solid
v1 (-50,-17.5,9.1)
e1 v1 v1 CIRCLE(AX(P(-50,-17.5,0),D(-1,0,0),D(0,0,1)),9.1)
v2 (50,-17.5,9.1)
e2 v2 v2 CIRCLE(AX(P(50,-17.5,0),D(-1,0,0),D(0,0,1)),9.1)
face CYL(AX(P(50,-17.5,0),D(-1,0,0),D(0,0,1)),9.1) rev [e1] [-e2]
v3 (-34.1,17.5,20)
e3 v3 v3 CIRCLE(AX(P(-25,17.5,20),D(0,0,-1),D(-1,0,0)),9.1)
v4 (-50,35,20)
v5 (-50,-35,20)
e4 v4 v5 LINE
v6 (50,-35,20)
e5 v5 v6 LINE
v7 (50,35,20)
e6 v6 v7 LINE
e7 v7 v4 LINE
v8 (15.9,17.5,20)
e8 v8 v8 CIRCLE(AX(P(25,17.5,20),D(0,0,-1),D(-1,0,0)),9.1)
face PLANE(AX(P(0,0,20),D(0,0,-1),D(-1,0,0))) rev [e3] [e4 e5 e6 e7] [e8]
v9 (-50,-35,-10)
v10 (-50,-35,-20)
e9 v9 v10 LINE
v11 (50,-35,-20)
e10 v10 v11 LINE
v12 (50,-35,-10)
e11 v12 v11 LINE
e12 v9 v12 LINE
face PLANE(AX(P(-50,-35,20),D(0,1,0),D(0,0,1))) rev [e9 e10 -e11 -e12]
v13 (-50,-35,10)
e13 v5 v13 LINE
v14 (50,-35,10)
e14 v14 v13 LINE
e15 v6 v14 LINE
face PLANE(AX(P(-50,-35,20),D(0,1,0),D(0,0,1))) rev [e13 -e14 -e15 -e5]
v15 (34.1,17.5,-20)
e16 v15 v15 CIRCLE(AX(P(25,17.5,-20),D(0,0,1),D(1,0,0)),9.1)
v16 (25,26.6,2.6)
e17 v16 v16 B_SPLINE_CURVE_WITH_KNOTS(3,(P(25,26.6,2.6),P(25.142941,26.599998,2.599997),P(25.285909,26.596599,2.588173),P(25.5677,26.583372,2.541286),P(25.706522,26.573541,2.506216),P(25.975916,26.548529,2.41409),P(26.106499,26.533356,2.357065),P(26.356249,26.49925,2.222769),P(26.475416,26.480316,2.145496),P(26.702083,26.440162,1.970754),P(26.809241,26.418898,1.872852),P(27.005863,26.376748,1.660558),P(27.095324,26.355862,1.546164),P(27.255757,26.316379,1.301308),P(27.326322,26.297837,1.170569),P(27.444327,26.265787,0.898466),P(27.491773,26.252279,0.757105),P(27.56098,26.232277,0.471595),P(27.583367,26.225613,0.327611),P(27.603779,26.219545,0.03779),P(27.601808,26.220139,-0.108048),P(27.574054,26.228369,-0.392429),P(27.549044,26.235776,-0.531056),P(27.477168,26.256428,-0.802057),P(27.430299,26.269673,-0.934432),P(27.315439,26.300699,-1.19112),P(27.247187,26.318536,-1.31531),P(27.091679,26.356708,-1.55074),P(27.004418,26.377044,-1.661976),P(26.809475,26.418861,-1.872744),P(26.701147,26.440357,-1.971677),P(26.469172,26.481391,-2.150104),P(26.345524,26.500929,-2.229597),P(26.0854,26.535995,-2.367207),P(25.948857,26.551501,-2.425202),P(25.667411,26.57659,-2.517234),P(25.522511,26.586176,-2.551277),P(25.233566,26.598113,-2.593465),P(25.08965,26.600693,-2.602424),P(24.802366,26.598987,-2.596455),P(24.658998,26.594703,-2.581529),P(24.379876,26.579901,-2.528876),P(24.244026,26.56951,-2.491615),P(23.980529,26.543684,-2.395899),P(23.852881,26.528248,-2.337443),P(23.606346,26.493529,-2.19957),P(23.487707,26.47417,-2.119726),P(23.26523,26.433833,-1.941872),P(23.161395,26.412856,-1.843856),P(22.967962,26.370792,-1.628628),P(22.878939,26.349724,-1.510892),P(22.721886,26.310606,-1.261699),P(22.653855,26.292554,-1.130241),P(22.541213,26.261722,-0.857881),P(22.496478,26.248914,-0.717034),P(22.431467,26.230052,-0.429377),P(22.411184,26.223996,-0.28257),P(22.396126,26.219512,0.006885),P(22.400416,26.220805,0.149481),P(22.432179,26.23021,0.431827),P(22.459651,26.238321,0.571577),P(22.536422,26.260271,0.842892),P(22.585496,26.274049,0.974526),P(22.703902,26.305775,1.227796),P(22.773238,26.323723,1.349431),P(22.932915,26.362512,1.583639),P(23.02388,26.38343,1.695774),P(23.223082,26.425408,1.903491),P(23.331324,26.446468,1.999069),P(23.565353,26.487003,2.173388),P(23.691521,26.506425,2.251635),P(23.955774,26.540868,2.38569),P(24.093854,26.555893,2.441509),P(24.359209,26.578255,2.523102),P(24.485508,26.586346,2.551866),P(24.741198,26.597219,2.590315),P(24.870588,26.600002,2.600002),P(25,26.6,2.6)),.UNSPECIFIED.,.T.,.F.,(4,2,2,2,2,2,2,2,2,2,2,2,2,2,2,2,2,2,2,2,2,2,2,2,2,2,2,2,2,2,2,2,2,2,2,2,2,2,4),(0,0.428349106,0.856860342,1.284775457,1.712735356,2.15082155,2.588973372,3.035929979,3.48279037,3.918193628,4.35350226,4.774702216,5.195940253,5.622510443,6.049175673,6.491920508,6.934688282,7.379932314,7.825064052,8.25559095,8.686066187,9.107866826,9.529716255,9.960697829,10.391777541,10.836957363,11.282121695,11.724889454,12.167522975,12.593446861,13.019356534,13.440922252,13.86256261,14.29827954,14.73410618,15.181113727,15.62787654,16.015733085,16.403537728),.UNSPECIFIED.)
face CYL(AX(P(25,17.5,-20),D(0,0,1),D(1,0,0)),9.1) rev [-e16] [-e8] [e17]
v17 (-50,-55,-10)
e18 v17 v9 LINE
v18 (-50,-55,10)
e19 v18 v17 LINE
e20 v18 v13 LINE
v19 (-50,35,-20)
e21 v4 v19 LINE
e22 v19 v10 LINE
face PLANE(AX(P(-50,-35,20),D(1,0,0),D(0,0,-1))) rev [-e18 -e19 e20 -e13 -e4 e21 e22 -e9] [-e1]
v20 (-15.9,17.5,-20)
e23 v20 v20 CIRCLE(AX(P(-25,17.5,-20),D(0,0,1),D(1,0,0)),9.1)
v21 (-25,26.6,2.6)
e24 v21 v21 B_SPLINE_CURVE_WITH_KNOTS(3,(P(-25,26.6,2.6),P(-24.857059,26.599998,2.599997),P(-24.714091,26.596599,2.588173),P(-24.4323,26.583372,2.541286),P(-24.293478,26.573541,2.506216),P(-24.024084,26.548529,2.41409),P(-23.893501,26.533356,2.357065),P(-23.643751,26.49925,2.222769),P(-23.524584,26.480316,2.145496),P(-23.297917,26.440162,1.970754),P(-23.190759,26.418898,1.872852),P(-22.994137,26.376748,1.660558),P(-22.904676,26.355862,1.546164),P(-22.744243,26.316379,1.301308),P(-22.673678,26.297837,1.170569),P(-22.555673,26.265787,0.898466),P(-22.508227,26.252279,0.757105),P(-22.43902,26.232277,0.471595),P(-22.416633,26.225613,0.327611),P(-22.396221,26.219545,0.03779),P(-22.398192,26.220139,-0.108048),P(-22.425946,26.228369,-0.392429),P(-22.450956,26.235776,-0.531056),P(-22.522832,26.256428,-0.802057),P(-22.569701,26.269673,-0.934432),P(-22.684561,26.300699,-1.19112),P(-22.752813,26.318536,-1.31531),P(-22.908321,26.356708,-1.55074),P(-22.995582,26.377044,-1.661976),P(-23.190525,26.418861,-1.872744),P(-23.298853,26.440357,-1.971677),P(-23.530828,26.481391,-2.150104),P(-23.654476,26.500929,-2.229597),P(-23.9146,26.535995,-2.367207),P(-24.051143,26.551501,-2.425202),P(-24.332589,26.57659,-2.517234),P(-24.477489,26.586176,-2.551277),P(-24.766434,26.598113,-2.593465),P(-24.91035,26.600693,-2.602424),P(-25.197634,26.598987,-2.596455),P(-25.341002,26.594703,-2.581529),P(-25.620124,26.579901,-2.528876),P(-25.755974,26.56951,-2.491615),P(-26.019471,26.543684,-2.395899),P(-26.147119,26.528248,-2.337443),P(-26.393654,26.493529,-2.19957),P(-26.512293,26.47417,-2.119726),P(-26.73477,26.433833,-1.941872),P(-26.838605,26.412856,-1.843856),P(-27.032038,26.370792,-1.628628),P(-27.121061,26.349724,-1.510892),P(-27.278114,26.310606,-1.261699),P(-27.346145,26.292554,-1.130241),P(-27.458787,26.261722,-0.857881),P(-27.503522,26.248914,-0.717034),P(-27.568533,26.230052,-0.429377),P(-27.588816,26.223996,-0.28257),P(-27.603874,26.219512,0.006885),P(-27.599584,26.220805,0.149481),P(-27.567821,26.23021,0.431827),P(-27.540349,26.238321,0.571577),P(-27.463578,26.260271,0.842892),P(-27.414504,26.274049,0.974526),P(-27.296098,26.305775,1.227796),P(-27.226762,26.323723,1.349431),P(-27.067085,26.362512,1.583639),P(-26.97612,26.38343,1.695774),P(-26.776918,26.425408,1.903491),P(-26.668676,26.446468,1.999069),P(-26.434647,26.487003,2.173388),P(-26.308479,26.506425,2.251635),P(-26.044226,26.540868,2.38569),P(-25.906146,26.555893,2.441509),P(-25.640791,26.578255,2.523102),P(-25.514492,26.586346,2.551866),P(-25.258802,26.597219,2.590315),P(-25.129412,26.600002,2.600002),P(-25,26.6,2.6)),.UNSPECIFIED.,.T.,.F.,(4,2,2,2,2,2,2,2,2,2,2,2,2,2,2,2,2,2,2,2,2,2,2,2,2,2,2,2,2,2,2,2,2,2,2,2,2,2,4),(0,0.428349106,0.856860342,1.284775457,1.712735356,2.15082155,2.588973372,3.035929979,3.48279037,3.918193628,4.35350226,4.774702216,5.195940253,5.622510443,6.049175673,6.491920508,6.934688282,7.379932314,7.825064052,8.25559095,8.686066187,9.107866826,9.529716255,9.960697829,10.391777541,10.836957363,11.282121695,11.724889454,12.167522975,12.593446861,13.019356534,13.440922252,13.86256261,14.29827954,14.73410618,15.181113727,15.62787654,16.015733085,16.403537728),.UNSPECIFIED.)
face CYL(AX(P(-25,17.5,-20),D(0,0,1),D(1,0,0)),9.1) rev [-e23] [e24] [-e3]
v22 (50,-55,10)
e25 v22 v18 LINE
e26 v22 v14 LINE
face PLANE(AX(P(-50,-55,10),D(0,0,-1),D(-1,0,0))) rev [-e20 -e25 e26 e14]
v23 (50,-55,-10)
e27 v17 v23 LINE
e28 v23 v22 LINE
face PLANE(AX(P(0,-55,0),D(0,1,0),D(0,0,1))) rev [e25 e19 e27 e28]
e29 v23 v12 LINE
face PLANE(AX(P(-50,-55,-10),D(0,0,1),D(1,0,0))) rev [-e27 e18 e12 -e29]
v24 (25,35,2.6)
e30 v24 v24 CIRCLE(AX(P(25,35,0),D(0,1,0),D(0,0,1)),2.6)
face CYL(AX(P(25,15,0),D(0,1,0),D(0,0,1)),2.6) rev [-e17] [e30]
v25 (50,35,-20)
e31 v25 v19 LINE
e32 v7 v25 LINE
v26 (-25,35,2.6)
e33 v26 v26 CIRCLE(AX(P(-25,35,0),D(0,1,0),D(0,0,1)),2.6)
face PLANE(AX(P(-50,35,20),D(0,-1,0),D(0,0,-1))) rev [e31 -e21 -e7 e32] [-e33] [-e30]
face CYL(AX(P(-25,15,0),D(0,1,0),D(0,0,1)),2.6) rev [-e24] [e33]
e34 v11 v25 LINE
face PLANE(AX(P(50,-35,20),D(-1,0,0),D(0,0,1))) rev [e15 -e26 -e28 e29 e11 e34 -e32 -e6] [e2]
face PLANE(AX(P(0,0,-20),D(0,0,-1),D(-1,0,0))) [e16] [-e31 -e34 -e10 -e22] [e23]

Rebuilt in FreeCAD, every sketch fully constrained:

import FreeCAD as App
import Part
import Sketcher


def add_polygon(sketch, points):
    """Adds a closed chain of lines whose ends are joined by coincident constraints."""
    first, n = sketch.GeometryCount, len(points)
    for a, b in zip(points, points[1:] + points[:1]):
        sketch.addGeometry(Part.LineSegment(App.Vector(*a, 0), App.Vector(*b, 0)), False)
    for i in range(n):
        sketch.addConstraint(Sketcher.Constraint("Coincident", first + i, 2, first + (i + 1) % n, 1))

doc = App.newDocument("Part")
body = doc.addObject("PartDesign::Body", "Body")

# Sketch on XY plane
sketch1 = doc.addObject("Sketcher::SketchObject", "Sketch")
body.addObject(sketch1)
sketch1.AttachmentSupport = (doc.XY_Plane, [""])
sketch1.MapMode = "FlatFace"
add_polygon(sketch1, [(-50, 35), (-50, -35), (50, -35), (50, 35)])  # lines 0-3
sketch1.addConstraint([
    Sketcher.Constraint("Vertical", 0),
    Sketcher.Constraint("Horizontal", 1),
    Sketcher.Constraint("Vertical", 2),
    Sketcher.Constraint("Horizontal", 3),
    Sketcher.Constraint("Symmetric", 0, 2, 2, 2, -1, 1),
    Sketcher.Constraint("DistanceX", 1, 1, 1, 2, 100.0),
    Sketcher.Constraint("DistanceY", 0, 2, 0, 1, 70.0),
])
pad1 = doc.addObject("PartDesign::Pad", "Pad")
body.addObject(pad1)
pad1.Profile = sketch1
pad1.Length = 40
pad1.Midplane = True

# Sketch on XY plane
sketch2 = doc.addObject("Sketcher::SketchObject", "Sketch001")
body.addObject(sketch2)
sketch2.AttachmentSupport = (doc.XY_Plane, [""])
sketch2.MapMode = "FlatFace"
sketch2.AttachmentOffset = App.Placement(App.Vector(0, 0, 20), App.Rotation())
sketch2.addGeometry([
    Part.Circle(App.Vector(25, 18, 0), App.Vector(0, 0, 1), 9),
    Part.Circle(App.Vector(-25, 18, 0), App.Vector(0, 0, 1), 9),
], False)
sketch2.addConstraint([
    Sketcher.Constraint("Equal", 0, 1),
    Sketcher.Constraint("Symmetric", 0, 3, 1, 3, -2),
    Sketcher.Constraint("Diameter", 0, 18.2),
    Sketcher.Constraint("DistanceX", -1, 1, 0, 3, 25.0),
    Sketcher.Constraint("DistanceY", -1, 1, 0, 3, 17.5),
])
pocket1 = doc.addObject("PartDesign::Pocket", "Pocket")
body.addObject(pocket1)
pocket1.Profile = sketch2
pocket1.Type = "ThroughAll"
pocket1.Midplane = True

# Sketch on YZ plane
sketch3 = doc.addObject("Sketcher::SketchObject", "Sketch002")
body.addObject(sketch3)
sketch3.AttachmentSupport = (doc.YZ_Plane, [""])
sketch3.MapMode = "FlatFace"
sketch3.AttachmentOffset = App.Placement(App.Vector(0, 0, -50), App.Rotation())
sketch3.addGeometry(Part.Circle(App.Vector(-18, 0, 0), App.Vector(0, 0, 1), 9), False)
sketch3.addConstraint([
    Sketcher.Constraint("PointOnObject", 0, 3, -1),
    Sketcher.Constraint("Diameter", 0, 18.2),
    Sketcher.Constraint("DistanceX", 0, 3, -1, 1, 17.5),
])
pocket2 = doc.addObject("PartDesign::Pocket", "Pocket001")
body.addObject(pocket2)
pocket2.Profile = sketch3
pocket2.Type = "ThroughAll"
pocket2.Midplane = True

# Sketch on XZ plane
sketch4 = doc.addObject("Sketcher::SketchObject", "Sketch003")
body.addObject(sketch4)
sketch4.AttachmentSupport = (doc.XZ_Plane, [""])
sketch4.MapMode = "FlatFace"
sketch4.AttachmentOffset = App.Placement(App.Vector(0, 0, -35), App.Rotation())
sketch4.addGeometry([
    Part.Circle(App.Vector(-25, 0, 0), App.Vector(0, 0, 1), 2.6),
    Part.Circle(App.Vector(25, 0, 0), App.Vector(0, 0, 1), 2.6),
], False)
sketch4.addConstraint([
    Sketcher.Constraint("Equal", 0, 1),
    Sketcher.Constraint("Symmetric", 0, 3, 1, 3, -1, 1),
    Sketcher.Constraint("PointOnObject", 0, 3, -1),
    Sketcher.Constraint("Diameter", 0, 5.2),
    Sketcher.Constraint("DistanceX", 0, 3, -1, 1, 25.0),
])
pocket3 = doc.addObject("PartDesign::Pocket", "Pocket002")
body.addObject(pocket3)
pocket3.Profile = sketch4
pocket3.Length = 20
pocket3.Reversed = True

# Sketch on XZ plane
sketch5 = doc.addObject("Sketcher::SketchObject", "Sketch004")
body.addObject(sketch5)
sketch5.AttachmentSupport = (doc.XZ_Plane, [""])
sketch5.MapMode = "FlatFace"
sketch5.AttachmentOffset = App.Placement(App.Vector(0, 0, 35), App.Rotation())
add_polygon(sketch5, [(-50, 10), (-50, -10), (50, -10), (50, 10)])  # lines 0-3
sketch5.addConstraint([
    Sketcher.Constraint("Vertical", 0),
    Sketcher.Constraint("Horizontal", 1),
    Sketcher.Constraint("Vertical", 2),
    Sketcher.Constraint("Horizontal", 3),
    Sketcher.Constraint("Symmetric", 0, 2, 2, 2, -1, 1),
    Sketcher.Constraint("DistanceX", 1, 1, 1, 2, 100.0),
    Sketcher.Constraint("DistanceY", 0, 2, 0, 1, 20.0),
])
pad2 = doc.addObject("PartDesign::Pad", "Pad001")
body.addObject(pad2)
pad2.Profile = sketch5
pad2.Length = 20

doc.recompute()
